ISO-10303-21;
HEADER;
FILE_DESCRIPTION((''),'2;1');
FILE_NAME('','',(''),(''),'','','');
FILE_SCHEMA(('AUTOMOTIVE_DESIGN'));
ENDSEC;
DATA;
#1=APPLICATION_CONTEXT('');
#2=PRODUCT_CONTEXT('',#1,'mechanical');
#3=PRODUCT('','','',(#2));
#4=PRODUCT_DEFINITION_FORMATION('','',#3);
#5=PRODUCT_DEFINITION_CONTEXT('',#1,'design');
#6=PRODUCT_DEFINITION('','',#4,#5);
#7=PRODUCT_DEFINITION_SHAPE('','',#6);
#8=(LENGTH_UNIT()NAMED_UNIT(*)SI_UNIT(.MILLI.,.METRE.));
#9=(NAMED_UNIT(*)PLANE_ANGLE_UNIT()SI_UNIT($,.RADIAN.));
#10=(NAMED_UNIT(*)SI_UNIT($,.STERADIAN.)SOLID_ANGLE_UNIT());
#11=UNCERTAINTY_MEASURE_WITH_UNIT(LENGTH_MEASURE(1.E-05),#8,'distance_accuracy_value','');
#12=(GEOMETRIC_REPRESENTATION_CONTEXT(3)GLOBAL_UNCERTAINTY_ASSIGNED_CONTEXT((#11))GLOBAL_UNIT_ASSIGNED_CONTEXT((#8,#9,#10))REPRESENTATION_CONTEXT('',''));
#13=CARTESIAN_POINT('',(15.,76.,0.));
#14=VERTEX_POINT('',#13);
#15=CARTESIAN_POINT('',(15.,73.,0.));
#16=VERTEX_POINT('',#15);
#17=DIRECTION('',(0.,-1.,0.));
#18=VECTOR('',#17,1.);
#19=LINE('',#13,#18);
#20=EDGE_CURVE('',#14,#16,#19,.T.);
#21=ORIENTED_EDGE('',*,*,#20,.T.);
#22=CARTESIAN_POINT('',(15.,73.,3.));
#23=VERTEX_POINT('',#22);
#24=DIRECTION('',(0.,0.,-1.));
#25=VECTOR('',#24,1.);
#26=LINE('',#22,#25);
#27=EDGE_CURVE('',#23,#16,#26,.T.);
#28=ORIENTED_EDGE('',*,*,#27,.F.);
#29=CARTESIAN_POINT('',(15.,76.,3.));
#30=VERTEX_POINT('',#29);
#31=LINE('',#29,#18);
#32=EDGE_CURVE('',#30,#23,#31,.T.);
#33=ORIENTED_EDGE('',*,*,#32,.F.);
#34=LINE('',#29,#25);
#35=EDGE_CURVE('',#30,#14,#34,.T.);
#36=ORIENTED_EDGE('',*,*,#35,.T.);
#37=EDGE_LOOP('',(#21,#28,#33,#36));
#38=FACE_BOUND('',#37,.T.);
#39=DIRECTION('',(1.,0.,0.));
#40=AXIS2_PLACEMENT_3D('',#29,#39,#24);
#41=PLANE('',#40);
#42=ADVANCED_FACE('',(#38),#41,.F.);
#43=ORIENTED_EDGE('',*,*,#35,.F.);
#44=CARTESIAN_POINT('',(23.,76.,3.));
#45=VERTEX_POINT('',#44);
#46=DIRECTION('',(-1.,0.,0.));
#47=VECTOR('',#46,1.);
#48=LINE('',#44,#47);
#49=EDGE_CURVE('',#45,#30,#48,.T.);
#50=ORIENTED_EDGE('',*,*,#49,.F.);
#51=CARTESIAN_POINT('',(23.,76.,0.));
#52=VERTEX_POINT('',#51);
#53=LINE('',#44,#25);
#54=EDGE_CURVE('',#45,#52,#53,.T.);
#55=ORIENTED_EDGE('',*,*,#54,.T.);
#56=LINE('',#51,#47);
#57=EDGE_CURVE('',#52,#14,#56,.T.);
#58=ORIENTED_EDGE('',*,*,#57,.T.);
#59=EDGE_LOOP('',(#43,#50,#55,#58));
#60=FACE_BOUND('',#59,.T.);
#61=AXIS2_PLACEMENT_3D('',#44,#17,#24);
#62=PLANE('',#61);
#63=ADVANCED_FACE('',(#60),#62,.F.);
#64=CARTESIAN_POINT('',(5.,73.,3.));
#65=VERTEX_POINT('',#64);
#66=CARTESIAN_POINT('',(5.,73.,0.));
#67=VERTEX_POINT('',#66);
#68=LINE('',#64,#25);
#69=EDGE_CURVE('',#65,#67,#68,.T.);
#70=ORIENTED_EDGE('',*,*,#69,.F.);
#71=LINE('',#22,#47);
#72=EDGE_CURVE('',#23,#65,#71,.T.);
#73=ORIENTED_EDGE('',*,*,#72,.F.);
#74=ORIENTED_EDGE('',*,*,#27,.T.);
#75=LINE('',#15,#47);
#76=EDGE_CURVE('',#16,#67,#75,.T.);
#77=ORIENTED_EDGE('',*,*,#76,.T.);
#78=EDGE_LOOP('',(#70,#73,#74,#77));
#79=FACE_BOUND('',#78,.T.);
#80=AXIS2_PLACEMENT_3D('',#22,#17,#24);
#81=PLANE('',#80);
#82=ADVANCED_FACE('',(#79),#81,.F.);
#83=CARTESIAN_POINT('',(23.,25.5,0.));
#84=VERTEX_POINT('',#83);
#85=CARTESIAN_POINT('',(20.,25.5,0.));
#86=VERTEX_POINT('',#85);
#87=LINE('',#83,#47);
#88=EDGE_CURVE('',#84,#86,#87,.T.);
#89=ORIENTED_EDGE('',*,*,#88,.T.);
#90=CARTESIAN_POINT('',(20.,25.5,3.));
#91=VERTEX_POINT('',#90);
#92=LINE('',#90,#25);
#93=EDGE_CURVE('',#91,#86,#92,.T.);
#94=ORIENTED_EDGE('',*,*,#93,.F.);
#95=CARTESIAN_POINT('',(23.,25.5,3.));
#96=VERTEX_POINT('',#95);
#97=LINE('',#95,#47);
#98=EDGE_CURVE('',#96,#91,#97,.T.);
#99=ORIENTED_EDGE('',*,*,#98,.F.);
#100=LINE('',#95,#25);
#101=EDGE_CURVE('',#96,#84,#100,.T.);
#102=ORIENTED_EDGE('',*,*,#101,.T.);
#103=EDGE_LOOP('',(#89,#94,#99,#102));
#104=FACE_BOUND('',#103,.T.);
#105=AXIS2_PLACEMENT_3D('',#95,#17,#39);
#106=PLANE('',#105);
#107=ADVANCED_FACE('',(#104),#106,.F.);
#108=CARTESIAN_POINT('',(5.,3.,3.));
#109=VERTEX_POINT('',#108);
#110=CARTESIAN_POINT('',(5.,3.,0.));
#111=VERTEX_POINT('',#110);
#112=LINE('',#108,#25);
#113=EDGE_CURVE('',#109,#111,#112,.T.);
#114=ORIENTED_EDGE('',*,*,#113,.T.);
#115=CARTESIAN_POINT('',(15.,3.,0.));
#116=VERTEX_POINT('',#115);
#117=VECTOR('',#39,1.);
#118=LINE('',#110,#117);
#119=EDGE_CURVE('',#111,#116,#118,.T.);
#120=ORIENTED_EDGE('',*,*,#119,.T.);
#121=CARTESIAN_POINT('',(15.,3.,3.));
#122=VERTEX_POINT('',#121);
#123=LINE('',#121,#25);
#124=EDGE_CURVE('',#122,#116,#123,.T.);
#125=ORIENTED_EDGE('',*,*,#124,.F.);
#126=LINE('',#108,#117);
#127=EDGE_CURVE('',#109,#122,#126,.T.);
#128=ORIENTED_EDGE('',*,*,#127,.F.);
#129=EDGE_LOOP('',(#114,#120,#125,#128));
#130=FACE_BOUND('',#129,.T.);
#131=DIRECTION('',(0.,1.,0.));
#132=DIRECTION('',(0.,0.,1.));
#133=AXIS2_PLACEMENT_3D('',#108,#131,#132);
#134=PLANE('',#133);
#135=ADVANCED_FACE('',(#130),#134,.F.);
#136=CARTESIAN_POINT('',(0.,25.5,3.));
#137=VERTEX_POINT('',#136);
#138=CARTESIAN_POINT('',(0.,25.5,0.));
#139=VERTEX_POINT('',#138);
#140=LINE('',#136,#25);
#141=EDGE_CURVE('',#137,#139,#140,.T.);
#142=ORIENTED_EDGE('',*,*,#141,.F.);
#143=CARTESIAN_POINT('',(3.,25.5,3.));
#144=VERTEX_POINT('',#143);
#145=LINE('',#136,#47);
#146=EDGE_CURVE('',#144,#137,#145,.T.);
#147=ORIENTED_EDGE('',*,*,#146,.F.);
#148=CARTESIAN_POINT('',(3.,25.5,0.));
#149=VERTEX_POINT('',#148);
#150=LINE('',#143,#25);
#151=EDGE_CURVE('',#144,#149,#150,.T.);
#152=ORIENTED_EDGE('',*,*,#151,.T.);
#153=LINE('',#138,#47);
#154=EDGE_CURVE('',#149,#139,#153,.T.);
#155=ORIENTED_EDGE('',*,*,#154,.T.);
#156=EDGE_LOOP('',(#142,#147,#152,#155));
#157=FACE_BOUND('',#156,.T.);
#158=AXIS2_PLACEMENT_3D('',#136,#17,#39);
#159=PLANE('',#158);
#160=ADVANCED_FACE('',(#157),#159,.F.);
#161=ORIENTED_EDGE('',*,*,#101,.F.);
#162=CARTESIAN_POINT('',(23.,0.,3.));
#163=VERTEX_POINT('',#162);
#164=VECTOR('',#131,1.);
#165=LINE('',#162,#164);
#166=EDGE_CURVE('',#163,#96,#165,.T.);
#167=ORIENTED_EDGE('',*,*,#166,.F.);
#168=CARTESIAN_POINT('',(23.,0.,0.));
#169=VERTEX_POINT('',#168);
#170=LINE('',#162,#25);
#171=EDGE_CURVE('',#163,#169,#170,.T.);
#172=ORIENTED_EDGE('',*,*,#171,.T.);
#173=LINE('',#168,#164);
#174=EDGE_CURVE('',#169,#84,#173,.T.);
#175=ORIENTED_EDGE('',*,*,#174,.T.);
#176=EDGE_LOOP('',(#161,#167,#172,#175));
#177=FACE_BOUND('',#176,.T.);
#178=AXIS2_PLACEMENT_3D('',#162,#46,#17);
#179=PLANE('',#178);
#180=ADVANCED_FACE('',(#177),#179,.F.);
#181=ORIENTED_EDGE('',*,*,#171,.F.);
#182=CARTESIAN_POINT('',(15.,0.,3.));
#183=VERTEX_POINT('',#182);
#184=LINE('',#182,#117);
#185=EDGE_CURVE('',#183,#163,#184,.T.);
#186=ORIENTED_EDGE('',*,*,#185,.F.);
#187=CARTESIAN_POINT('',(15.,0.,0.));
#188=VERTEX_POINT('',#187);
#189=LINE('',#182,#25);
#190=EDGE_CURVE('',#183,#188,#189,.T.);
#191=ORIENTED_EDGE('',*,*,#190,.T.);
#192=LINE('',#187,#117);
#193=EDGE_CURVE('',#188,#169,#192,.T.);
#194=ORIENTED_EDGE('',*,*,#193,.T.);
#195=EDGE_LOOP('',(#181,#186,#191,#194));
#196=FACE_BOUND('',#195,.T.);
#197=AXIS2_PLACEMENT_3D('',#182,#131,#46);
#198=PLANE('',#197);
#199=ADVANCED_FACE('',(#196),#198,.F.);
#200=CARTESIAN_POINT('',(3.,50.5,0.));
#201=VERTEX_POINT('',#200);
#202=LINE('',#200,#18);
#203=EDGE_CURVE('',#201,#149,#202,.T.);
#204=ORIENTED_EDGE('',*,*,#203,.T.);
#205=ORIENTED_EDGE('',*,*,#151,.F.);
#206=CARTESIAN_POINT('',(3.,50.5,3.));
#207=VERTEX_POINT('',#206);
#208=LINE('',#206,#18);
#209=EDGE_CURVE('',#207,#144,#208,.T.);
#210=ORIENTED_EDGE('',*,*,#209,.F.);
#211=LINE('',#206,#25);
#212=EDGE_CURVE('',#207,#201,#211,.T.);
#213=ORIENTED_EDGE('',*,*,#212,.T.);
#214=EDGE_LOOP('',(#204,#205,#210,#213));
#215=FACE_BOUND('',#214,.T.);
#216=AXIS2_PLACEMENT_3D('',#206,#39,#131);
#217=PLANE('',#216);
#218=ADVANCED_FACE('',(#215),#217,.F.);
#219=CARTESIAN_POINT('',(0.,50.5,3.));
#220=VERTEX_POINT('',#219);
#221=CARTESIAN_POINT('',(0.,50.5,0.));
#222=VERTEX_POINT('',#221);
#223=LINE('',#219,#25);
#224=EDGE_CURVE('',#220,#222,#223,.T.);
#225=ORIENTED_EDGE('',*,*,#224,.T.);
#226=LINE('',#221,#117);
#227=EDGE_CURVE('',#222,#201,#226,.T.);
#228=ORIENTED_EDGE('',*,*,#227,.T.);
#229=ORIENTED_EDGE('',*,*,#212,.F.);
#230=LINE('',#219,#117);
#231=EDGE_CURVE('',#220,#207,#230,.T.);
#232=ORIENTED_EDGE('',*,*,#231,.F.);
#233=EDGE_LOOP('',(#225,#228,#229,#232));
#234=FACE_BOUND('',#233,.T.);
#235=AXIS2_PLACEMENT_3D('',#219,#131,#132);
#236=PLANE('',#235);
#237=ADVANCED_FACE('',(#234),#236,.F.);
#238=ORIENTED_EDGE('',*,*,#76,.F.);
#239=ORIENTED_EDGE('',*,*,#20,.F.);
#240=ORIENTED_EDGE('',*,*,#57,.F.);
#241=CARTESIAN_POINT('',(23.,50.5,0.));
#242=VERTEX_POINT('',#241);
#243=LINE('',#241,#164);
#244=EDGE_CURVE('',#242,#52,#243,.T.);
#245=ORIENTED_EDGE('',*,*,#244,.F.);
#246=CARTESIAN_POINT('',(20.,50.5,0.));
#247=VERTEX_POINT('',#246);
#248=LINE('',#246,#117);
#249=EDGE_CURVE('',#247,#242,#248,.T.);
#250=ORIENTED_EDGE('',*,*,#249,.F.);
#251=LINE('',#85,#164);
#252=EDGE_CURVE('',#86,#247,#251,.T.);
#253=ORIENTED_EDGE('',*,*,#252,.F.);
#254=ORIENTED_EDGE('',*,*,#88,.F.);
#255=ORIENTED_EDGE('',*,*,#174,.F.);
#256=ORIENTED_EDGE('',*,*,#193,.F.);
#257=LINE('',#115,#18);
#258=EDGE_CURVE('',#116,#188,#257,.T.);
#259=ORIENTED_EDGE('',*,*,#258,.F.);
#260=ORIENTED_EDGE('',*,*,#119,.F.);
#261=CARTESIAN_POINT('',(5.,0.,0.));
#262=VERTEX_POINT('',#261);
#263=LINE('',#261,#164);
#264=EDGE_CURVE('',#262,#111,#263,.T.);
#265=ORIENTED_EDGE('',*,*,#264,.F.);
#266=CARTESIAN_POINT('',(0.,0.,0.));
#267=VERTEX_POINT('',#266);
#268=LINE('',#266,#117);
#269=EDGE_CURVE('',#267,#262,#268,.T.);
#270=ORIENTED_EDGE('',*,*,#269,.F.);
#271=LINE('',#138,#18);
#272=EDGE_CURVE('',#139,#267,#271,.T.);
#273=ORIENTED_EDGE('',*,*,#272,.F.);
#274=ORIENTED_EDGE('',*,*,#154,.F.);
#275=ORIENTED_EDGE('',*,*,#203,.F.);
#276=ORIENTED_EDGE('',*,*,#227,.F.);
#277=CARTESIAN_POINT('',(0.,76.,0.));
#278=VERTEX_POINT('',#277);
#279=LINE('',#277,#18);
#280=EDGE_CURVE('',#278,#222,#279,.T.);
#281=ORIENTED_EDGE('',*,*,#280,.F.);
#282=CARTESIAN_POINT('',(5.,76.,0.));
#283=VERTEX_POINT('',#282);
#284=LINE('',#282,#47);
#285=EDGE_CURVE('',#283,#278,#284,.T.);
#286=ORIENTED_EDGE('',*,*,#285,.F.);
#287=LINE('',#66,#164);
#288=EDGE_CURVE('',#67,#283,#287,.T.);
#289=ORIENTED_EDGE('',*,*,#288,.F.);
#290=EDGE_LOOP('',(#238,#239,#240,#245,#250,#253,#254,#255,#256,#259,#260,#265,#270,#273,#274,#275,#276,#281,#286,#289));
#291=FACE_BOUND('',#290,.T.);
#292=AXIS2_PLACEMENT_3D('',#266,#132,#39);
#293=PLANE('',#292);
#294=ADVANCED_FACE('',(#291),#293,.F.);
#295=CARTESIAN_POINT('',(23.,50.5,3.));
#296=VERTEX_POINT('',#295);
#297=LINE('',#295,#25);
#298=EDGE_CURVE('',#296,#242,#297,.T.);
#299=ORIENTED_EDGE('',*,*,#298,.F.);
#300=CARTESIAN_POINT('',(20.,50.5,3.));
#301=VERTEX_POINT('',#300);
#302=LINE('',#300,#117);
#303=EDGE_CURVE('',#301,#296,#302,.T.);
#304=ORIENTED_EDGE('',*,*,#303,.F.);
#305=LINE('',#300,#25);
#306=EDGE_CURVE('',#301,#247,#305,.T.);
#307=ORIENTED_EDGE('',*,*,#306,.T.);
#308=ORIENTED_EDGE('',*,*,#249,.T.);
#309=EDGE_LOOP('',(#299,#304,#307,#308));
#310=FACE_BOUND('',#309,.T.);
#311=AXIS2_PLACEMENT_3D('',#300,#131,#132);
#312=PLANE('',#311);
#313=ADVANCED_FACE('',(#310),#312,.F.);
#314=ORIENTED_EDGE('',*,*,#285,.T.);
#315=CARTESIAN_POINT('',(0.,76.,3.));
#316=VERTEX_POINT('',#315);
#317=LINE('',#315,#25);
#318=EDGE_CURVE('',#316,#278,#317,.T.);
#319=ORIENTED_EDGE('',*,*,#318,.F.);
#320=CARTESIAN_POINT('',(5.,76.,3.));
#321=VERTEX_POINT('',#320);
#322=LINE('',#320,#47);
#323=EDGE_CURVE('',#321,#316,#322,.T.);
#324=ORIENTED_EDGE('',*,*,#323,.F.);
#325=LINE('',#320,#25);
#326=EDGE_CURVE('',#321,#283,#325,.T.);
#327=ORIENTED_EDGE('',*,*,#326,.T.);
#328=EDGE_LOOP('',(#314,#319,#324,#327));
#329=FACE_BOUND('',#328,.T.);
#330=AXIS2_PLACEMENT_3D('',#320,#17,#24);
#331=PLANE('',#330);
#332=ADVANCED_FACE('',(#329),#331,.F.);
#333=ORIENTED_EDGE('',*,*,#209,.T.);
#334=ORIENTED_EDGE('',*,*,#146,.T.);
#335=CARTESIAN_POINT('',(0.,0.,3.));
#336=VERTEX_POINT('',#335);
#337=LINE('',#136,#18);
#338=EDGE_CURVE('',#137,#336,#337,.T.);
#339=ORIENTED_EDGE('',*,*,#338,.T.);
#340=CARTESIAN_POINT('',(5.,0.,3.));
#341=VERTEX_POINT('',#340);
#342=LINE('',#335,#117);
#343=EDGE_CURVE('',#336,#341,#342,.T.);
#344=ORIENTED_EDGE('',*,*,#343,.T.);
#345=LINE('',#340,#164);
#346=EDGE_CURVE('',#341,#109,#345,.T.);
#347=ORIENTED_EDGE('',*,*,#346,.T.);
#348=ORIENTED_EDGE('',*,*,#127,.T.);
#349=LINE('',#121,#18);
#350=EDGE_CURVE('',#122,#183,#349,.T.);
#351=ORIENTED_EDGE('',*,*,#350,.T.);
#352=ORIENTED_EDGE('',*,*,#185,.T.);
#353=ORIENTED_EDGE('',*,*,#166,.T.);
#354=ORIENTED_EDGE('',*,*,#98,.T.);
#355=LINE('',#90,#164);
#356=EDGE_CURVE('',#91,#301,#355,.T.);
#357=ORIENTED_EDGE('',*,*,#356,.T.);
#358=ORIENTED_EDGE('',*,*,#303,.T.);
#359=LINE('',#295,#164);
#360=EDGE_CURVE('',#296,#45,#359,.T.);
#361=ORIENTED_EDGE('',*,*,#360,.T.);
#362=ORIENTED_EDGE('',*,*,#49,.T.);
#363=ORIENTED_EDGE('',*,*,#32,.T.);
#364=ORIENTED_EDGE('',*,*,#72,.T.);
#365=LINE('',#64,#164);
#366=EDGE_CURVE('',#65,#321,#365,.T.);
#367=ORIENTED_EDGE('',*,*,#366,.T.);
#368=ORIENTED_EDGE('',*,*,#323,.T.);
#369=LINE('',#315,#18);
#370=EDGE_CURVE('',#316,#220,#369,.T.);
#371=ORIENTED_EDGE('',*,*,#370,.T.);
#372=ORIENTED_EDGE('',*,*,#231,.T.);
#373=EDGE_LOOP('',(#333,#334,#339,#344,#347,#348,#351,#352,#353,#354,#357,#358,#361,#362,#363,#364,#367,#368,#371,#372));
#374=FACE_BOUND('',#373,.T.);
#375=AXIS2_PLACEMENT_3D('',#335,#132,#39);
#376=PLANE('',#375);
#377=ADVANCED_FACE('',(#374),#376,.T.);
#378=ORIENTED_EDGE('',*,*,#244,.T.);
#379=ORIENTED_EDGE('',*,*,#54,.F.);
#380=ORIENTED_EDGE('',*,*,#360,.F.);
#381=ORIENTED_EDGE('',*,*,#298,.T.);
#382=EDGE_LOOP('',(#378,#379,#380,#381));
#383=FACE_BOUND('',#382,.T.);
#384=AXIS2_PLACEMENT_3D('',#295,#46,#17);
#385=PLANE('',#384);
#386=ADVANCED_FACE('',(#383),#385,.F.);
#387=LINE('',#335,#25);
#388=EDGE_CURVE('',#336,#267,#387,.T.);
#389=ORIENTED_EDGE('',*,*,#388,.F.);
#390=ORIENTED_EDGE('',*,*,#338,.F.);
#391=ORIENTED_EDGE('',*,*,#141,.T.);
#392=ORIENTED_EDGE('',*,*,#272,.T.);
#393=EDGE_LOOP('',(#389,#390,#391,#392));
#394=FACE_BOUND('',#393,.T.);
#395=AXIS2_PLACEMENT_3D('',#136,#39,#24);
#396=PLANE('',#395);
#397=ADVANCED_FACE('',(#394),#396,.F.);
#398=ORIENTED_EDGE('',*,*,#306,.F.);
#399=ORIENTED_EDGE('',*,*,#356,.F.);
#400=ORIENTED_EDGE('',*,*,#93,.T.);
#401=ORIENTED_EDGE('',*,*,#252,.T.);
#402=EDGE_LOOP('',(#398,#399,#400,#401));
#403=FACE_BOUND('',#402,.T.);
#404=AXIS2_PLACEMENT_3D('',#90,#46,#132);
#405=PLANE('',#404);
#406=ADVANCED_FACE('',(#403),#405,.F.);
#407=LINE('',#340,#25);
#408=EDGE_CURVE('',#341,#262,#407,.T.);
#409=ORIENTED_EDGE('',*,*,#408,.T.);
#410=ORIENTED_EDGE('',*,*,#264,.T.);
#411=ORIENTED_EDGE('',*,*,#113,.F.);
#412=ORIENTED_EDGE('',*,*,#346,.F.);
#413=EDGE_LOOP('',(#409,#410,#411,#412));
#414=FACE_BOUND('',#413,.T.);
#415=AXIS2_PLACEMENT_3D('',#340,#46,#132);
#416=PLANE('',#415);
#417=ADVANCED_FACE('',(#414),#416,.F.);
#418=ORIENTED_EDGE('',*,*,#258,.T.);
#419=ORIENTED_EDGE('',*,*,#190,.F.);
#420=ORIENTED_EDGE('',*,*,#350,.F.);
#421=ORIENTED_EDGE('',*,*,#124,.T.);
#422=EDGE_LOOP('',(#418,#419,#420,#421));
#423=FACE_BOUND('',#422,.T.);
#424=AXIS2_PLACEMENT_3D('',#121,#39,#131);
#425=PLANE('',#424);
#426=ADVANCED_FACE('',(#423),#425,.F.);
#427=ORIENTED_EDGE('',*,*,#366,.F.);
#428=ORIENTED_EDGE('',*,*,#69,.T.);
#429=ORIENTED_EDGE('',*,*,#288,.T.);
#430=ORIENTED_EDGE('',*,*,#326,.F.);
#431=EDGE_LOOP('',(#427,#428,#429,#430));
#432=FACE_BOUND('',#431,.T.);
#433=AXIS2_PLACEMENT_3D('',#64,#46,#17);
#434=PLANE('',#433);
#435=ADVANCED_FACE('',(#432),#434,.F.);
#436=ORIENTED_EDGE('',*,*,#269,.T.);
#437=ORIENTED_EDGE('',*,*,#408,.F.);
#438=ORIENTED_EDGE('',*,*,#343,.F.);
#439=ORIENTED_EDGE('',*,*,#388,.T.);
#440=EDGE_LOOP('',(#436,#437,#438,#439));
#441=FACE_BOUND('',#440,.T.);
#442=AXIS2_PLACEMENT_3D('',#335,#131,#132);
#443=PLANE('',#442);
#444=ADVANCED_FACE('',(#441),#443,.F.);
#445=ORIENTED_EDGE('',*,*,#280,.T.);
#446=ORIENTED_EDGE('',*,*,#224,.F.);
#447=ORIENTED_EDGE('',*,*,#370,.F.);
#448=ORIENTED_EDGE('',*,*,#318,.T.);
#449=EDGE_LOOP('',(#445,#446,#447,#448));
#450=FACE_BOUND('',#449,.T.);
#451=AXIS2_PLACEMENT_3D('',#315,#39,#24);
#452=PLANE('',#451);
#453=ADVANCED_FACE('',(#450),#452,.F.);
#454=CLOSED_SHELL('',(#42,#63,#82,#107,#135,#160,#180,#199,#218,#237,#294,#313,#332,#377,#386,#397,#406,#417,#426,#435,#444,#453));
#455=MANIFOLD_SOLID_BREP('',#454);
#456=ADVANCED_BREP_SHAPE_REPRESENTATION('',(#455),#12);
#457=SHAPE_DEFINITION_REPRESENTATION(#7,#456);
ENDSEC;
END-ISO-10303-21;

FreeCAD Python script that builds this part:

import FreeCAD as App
import Part
import Sketcher
from FreeCAD import Vector

doc = App.newDocument("Part")
body = doc.addObject("PartDesign::Body", "Body")

# Sketch on XY plane
sketch1 = body.newObject("Sketcher::SketchObject", "Sketch")
sketch1.AttachmentSupport = (doc.getObject("XY_Plane"), [""])
sketch1.MapMode = "FlatFace"
sketch1.addGeometry([
    Part.LineSegment(Vector(0, 76, 0), Vector(0, 50.5, 0)),  # 0
    Part.LineSegment(Vector(0, 50.5, 0), Vector(3, 50.5, 0)),  # 1
    Part.LineSegment(Vector(3, 50.5, 0), Vector(3, 25.5, 0)),  # 2
    Part.LineSegment(Vector(3, 25.5, 0), Vector(0, 25.5, 0)),  # 3
    Part.LineSegment(Vector(0, 25.5, 0), Vector(0, 0, 0)),  # 4
    Part.LineSegment(Vector(0, 0, 0), Vector(5, 0, 0)),  # 5
    Part.LineSegment(Vector(5, 0, 0), Vector(5, 3, 0)),  # 6
    Part.LineSegment(Vector(5, 3, 0), Vector(15, 3, 0)),  # 7
    Part.LineSegment(Vector(15, 3, 0), Vector(15, 0, 0)),  # 8
    Part.LineSegment(Vector(15, 0, 0), Vector(23, 0, 0)),  # 9
    Part.LineSegment(Vector(23, 0, 0), Vector(23, 25.5, 0)),  # 10
    Part.LineSegment(Vector(23, 25.5, 0), Vector(20, 25.5, 0)),  # 11
    Part.LineSegment(Vector(20, 25.5, 0), Vector(20, 50.5, 0)),  # 12
    Part.LineSegment(Vector(20, 50.5, 0), Vector(23, 50.5, 0)),  # 13
    Part.LineSegment(Vector(23, 50.5, 0), Vector(23, 76, 0)),  # 14
    Part.LineSegment(Vector(23, 76, 0), Vector(15, 76, 0)),  # 15
    Part.LineSegment(Vector(15, 76, 0), Vector(15, 73, 0)),  # 16
    Part.LineSegment(Vector(15, 73, 0), Vector(5, 73, 0)),  # 17
    Part.LineSegment(Vector(5, 73, 0), Vector(5, 76, 0)),  # 18
    Part.LineSegment(Vector(5, 76, 0), Vector(0, 76, 0)),  # 19
], False)
sketch1.addConstraint([
    Sketcher.Constraint("Coincident", 0, 2, 1, 1),
    Sketcher.Constraint("Coincident", 1, 2, 2, 1),
    Sketcher.Constraint("Coincident", 2, 2, 3, 1),
    Sketcher.Constraint("Coincident", 3, 2, 4, 1),
    Sketcher.Constraint("Coincident", 4, 2, 5, 1),
    Sketcher.Constraint("Coincident", 5, 2, 6, 1),
    Sketcher.Constraint("Coincident", 6, 2, 7, 1),
    Sketcher.Constraint("Coincident", 7, 2, 8, 1),
    Sketcher.Constraint("Coincident", 8, 2, 9, 1),
    Sketcher.Constraint("Coincident", 9, 2, 10, 1),
    Sketcher.Constraint("Coincident", 10, 2, 11, 1),
    Sketcher.Constraint("Coincident", 11, 2, 12, 1),
    Sketcher.Constraint("Coincident", 12, 2, 13, 1),
    Sketcher.Constraint("Coincident", 13, 2, 14, 1),
    Sketcher.Constraint("Coincident", 14, 2, 15, 1),
    Sketcher.Constraint("Coincident", 15, 2, 16, 1),
    Sketcher.Constraint("Coincident", 16, 2, 17, 1),
    Sketcher.Constraint("Coincident", 17, 2, 18, 1),
    Sketcher.Constraint("Coincident", 18, 2, 19, 1),
    Sketcher.Constraint("Coincident", 19, 2, 0, 1),
    Sketcher.Constraint("Vertical", 0),
    Sketcher.Constraint("Horizontal", 1),
    Sketcher.Constraint("Vertical", 2),
    Sketcher.Constraint("Horizontal", 3),
    Sketcher.Constraint("Vertical", 4),
    Sketcher.Constraint("Horizontal", 5),
    Sketcher.Constraint("Vertical", 6),
    Sketcher.Constraint("Horizontal", 7),
    Sketcher.Constraint("Vertical", 8),
    Sketcher.Constraint("Horizontal", 9),
    Sketcher.Constraint("Vertical", 10),
    Sketcher.Constraint("Horizontal", 11),
    Sketcher.Constraint("Vertical", 12),
    Sketcher.Constraint("Horizontal", 13),
    Sketcher.Constraint("Vertical", 14),
    Sketcher.Constraint("Horizontal", 15),
    Sketcher.Constraint("Vertical", 16),
    Sketcher.Constraint("Horizontal", 17),
    Sketcher.Constraint("Vertical", 18),
    Sketcher.Constraint("Horizontal", 19),
    Sketcher.Constraint("Coincident", 4, 2, -1, 1),
    Sketcher.Constraint("PointOnObject", 0, 2, -2),
    Sketcher.Constraint("PointOnObject", 8, 2, -1),
    Sketcher.Constraint("Horizontal", 3, 2, 10, 2),
    Sketcher.Constraint("Horizontal", 1, 2, 12, 2),
    Sketcher.Constraint("Horizontal", 15, 2, 18, 2),
    Sketcher.Constraint("Vertical", 10, 2, 13, 2),
    Sketcher.Constraint("Vertical", 8, 2, 15, 2),
    Sketcher.Constraint("Vertical", 6, 2, 17, 2),
    Sketcher.Constraint("Equal", 3, 11),
    Sketcher.Constraint("Equal", 0, 4),
    Sketcher.Constraint("Equal", 13, 6),
    Sketcher.Constraint("Equal", 8, 16),
    Sketcher.Constraint("DistanceX", 1, 1, 1, 2, 3.0),
    Sketcher.Constraint("DistanceX", 5, 1, 5, 2, 5.0),
    Sketcher.Constraint("DistanceX", 7, 1, 7, 2, 10.0),
    Sketcher.Constraint("DistanceX", 9, 1, 9, 2, 8.0),
    Sketcher.Constraint("DistanceY", 2, 2, 2, 1, 25.0),
    Sketcher.Constraint("DistanceY", 0, 2, 0, 1, 25.5),
])
pad1 = body.newObject("PartDesign::Pad", "Pad")
pad1.Profile = sketch1
pad1.Length = 3

doc.recompute()
